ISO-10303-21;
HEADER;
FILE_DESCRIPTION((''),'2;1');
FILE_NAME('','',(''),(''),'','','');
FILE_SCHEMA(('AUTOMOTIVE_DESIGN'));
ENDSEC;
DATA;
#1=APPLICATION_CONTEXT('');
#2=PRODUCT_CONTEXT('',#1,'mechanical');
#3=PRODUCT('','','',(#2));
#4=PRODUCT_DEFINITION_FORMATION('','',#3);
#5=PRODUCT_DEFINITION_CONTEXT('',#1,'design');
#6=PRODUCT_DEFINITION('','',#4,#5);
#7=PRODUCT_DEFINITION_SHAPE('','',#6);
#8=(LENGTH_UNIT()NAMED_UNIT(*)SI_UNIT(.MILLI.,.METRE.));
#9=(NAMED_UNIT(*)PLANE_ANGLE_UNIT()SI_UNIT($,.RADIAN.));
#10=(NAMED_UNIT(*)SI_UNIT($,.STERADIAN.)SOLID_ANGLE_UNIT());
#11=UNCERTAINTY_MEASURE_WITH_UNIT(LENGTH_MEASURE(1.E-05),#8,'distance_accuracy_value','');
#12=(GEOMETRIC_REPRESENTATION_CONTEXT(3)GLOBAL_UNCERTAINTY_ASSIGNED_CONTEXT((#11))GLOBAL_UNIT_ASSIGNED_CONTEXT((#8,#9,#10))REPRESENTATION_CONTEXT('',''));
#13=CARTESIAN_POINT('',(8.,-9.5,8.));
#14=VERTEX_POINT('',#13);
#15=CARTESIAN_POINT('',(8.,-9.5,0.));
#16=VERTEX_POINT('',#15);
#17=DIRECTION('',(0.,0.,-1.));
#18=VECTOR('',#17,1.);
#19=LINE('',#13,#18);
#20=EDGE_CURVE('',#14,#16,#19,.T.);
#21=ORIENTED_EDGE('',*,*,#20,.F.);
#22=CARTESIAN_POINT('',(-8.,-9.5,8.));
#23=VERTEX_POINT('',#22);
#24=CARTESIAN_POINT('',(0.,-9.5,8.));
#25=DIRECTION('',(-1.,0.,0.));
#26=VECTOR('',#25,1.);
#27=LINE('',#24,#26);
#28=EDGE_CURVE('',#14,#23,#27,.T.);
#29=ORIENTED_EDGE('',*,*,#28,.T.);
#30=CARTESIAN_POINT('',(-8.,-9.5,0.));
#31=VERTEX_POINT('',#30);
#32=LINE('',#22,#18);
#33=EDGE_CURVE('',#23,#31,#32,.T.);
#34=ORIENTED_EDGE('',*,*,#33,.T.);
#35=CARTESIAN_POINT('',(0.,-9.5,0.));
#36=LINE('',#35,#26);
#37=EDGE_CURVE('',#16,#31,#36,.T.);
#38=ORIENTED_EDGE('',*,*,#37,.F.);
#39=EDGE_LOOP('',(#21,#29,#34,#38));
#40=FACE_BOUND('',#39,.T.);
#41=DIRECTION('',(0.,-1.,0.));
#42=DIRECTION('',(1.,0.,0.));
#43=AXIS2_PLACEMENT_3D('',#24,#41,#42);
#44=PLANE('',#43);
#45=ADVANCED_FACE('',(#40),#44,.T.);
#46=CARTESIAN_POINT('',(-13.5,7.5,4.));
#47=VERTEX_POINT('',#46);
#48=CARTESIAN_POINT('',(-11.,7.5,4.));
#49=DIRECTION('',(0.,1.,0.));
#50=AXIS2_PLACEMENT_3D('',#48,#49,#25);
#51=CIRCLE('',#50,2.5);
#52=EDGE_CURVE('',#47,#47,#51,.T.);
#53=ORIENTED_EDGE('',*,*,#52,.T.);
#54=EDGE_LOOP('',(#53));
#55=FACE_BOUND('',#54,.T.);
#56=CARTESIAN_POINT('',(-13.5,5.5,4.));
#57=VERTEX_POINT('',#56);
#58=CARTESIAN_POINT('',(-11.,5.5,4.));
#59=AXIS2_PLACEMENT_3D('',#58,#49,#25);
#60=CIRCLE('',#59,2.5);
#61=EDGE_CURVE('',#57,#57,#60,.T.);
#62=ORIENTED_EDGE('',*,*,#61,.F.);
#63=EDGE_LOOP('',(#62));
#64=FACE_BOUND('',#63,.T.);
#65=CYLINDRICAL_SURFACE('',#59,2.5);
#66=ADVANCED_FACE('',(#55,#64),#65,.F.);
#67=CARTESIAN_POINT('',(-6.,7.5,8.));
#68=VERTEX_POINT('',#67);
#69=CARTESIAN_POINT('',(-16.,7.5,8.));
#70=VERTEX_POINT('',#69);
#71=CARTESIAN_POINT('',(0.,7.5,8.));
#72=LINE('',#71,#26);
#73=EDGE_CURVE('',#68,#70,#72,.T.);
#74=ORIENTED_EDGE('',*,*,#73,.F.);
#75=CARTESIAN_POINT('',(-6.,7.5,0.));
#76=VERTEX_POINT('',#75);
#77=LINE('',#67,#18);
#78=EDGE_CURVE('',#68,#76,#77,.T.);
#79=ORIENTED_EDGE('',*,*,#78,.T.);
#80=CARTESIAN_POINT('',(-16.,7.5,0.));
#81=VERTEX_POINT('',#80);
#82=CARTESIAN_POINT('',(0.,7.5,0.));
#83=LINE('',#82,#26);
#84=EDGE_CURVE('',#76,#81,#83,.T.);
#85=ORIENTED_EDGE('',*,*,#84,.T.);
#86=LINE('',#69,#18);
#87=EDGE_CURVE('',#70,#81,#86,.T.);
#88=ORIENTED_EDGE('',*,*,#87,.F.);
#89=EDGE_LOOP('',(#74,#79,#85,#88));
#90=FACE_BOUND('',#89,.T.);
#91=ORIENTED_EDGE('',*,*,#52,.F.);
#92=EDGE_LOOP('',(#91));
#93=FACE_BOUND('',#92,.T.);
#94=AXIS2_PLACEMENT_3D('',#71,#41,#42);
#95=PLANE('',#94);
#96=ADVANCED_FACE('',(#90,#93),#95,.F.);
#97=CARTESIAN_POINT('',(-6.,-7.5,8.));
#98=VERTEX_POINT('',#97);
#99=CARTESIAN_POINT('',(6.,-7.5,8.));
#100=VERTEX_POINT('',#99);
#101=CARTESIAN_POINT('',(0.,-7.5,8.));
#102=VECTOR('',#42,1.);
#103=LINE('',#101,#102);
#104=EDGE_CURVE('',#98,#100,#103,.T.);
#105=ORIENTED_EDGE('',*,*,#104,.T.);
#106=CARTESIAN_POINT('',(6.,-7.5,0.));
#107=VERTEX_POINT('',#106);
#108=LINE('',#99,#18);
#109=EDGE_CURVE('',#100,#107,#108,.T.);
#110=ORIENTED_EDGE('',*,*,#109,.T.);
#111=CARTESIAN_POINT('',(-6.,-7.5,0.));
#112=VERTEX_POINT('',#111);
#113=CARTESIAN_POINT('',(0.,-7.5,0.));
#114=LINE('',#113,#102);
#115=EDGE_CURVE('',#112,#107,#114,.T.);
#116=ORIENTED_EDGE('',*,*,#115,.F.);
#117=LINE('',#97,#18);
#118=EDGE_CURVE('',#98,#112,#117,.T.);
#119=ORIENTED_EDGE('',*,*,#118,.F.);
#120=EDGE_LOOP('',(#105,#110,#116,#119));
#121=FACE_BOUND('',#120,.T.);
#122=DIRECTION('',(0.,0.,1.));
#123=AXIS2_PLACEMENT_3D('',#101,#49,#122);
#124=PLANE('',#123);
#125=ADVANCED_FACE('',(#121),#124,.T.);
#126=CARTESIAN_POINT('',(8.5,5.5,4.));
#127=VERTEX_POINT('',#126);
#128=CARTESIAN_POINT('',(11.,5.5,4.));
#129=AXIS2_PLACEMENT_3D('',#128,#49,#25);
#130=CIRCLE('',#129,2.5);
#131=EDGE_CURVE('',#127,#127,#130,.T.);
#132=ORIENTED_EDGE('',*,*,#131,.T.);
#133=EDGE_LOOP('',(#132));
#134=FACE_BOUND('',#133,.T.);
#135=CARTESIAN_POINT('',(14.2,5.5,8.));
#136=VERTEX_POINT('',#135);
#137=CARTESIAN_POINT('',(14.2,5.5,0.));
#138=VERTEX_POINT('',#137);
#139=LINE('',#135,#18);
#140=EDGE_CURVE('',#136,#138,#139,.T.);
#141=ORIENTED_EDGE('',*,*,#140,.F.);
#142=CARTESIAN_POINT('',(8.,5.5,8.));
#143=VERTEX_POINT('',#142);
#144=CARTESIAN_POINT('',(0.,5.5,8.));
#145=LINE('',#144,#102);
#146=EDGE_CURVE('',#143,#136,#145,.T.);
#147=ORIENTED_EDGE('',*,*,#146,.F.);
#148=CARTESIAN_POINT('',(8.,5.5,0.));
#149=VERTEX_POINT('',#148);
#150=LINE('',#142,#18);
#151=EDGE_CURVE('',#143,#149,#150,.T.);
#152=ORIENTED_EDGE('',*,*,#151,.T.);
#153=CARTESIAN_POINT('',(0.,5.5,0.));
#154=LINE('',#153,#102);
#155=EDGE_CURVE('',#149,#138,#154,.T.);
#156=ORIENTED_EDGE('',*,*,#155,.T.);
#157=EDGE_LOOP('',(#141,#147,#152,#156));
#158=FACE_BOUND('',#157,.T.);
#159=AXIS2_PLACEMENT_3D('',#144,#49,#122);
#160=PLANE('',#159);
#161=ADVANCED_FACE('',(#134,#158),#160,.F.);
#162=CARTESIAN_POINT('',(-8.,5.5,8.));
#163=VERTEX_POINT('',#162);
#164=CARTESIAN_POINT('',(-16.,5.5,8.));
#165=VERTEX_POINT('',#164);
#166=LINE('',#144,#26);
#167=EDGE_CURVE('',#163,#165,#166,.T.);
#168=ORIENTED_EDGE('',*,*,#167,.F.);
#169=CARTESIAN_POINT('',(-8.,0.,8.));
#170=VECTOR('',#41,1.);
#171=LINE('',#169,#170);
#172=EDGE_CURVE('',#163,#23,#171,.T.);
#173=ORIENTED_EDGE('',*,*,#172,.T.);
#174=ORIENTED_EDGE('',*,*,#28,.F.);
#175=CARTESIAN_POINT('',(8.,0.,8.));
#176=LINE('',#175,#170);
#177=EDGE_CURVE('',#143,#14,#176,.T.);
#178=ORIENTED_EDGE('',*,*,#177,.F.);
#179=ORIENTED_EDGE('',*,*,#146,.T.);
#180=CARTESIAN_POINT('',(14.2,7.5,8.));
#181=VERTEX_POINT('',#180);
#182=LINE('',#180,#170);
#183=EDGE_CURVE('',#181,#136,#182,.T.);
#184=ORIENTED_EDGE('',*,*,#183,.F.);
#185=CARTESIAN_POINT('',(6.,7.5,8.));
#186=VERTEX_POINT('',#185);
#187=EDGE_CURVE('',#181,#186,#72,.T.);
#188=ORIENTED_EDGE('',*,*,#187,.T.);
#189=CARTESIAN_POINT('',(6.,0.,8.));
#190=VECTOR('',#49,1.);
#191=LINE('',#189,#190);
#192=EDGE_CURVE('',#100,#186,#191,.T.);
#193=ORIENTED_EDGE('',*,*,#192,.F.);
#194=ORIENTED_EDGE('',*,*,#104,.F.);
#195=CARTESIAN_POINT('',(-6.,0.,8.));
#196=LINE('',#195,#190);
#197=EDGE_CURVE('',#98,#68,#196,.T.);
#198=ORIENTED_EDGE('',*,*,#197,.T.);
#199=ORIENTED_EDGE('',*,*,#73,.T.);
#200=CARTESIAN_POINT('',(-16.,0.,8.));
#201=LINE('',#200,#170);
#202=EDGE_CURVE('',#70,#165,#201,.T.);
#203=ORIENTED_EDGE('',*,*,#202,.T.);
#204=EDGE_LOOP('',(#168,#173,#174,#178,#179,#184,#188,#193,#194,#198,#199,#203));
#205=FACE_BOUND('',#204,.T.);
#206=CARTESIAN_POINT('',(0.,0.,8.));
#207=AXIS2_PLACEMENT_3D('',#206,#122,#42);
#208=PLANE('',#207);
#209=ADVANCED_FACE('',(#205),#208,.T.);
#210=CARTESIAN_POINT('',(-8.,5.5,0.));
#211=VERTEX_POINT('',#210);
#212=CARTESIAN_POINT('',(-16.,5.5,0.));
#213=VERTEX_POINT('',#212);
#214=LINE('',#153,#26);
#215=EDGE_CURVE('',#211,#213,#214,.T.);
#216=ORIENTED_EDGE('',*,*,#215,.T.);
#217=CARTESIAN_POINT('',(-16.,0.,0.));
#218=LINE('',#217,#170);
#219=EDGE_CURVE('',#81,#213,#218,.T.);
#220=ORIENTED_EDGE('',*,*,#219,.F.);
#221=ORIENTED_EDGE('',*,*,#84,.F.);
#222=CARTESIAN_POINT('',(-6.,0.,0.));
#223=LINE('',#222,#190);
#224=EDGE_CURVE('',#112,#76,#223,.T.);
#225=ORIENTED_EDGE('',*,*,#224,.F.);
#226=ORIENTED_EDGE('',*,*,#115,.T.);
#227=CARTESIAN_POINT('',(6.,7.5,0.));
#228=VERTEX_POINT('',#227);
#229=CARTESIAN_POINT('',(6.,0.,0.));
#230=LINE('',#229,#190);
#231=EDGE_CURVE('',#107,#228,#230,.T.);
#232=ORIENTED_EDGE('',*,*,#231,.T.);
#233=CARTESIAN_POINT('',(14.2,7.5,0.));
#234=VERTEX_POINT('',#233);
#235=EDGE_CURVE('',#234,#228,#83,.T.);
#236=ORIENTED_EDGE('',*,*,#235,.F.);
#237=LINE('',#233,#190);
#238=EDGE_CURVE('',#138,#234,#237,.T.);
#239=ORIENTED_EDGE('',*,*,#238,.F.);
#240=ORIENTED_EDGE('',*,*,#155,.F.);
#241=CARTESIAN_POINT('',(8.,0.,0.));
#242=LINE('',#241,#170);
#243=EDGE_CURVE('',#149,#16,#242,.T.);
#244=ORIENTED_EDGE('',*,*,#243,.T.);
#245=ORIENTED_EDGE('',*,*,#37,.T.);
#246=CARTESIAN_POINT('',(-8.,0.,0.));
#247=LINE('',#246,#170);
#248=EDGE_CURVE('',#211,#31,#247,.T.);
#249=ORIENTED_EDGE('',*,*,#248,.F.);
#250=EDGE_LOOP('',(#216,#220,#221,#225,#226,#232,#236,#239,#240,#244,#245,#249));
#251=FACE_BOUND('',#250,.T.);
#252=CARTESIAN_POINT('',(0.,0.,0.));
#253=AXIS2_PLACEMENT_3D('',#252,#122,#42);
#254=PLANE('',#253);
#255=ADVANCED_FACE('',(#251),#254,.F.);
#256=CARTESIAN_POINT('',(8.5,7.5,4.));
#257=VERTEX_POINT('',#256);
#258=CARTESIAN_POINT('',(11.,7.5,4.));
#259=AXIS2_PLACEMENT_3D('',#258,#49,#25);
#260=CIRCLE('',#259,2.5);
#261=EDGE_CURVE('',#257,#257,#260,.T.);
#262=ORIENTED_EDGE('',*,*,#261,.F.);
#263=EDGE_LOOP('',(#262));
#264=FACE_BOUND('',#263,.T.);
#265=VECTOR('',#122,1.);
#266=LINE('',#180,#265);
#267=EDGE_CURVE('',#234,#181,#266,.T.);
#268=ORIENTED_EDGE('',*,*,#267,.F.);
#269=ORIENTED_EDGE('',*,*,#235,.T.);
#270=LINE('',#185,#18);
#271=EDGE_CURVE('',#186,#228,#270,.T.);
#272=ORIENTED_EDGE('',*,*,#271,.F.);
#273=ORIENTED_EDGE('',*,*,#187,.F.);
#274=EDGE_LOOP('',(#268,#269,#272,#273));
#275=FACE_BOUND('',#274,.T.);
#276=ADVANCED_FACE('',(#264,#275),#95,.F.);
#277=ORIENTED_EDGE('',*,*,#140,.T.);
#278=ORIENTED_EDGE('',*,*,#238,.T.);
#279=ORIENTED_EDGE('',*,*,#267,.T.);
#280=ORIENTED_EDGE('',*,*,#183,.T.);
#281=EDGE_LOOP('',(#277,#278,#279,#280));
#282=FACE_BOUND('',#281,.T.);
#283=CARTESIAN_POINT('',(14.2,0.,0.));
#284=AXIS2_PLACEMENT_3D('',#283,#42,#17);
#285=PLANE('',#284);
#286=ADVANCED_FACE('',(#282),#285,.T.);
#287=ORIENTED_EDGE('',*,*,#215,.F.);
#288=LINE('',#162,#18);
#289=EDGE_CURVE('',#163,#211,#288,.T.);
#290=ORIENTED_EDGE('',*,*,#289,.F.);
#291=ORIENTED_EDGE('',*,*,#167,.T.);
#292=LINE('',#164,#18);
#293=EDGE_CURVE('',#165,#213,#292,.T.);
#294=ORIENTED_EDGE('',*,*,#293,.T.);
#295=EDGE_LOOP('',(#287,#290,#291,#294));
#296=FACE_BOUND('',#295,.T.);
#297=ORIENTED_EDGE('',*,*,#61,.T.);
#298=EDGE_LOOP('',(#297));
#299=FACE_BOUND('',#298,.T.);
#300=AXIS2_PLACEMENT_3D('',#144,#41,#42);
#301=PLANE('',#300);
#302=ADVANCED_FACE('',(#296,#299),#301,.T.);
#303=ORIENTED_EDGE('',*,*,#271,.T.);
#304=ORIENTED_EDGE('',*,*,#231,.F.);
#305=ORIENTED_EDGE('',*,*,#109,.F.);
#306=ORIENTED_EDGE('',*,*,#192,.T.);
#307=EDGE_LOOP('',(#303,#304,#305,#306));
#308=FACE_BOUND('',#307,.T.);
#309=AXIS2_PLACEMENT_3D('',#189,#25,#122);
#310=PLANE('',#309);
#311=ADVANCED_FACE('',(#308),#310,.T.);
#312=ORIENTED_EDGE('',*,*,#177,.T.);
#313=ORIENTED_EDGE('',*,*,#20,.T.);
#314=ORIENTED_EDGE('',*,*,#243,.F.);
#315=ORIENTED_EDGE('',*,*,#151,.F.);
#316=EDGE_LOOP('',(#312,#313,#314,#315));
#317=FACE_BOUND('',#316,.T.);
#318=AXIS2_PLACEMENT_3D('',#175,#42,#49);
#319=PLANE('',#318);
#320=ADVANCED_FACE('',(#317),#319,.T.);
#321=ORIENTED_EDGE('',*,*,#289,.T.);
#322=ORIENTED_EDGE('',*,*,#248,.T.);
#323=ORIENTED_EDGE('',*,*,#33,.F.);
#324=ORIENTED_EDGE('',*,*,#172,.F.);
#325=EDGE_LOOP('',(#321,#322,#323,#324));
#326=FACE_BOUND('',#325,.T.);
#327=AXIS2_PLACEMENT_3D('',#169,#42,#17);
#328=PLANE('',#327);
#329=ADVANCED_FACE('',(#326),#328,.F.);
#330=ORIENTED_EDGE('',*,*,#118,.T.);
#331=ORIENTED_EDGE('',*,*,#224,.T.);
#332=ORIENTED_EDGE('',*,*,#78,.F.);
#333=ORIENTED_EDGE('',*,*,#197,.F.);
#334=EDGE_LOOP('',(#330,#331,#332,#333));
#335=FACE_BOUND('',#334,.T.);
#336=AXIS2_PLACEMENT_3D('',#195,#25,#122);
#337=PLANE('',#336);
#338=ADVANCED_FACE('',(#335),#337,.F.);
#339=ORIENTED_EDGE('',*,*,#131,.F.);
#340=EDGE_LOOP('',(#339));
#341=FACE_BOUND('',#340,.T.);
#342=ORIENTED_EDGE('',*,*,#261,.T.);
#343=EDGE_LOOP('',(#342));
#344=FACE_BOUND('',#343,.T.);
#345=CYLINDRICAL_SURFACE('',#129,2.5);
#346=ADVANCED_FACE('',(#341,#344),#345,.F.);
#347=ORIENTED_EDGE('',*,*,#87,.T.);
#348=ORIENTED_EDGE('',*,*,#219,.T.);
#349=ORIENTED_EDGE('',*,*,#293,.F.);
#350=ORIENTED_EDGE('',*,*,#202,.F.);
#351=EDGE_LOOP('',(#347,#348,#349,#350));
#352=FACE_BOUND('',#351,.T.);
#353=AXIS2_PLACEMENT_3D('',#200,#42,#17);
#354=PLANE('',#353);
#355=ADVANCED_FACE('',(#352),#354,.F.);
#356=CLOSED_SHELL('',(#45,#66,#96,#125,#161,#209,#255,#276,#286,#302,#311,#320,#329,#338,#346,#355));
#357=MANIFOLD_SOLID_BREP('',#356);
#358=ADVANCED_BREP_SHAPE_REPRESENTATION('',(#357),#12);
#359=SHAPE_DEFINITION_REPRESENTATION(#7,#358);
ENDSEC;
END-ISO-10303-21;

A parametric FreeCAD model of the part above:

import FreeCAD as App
import Part
import Sketcher
Q = App.Units.Quantity

doc = App.newDocument("Part")
params = doc.addObject("Spreadsheet::Sheet", "Params")
for row, (alias, value) in enumerate([
    ("sketch1_width", "8 mm"),
    ("sketch1_width2", "16 mm"),
    ("sketch1_width3", "10 mm"),
    ("sketch1_height", "2 mm"),
    ("sketch1_height2", "15 mm"),
    ("pad1_length", "8 mm"),
    ("sketch2_diameter", "5 mm"),
    ("pocket1_length", "2 mm"),
    ("sketch3_width", "2 mm"),
    ("sketch3_height", "8 mm"),
    ("pocket2_length", "1.8 mm"),
], start=1):
    params.set(f"A{row}", alias)
    params.set(f"B{row}", "=" + value)
    params.setAlias(f"B{row}", alias)

body = doc.addObject("PartDesign::Body", "Body")

sketch1 = doc.addObject("Sketcher::SketchObject", "Sketch")
body.addObject(sketch1)
sketch1.AttachmentSupport = (doc.XY_Plane, [""])
sketch1.MapMode = "FlatFace"
sketch1.addGeometry(Part.LineSegment(App.Vector(-16, 7.5, 0), App.Vector(-16, 5.5, 0)), False)
sketch1.addGeometry(Part.LineSegment(App.Vector(-16, 5.5, 0), App.Vector(-8, 5.5, 0)), False)
sketch1.addGeometry(Part.LineSegment(App.Vector(-8, 5.5, 0), App.Vector(-8, -9.5, 0)), False)
sketch1.addGeometry(Part.LineSegment(App.Vector(-8, -9.5, 0), App.Vector(8, -9.5, 0)), False)
sketch1.addGeometry(Part.LineSegment(App.Vector(8, -9.5, 0), App.Vector(8, 5.5, 0)), False)
sketch1.addGeometry(Part.LineSegment(App.Vector(8, 5.5, 0), App.Vector(16, 5.5, 0)), False)
sketch1.addGeometry(Part.LineSegment(App.Vector(16, 5.5, 0), App.Vector(16, 7.5, 0)), False)
sketch1.addGeometry(Part.LineSegment(App.Vector(16, 7.5, 0), App.Vector(6, 7.5, 0)), False)
sketch1.addGeometry(Part.LineSegment(App.Vector(6, 7.5, 0), App.Vector(6, -7.5, 0)), False)
sketch1.addGeometry(Part.LineSegment(App.Vector(6, -7.5, 0), App.Vector(-6, -7.5, 0)), False)
sketch1.addGeometry(Part.LineSegment(App.Vector(-6, -7.5, 0), App.Vector(-6, 7.5, 0)), False)
sketch1.addGeometry(Part.LineSegment(App.Vector(-6, 7.5, 0), App.Vector(-16, 7.5, 0)), False)
sketch1.addConstraint(Sketcher.Constraint("Coincident", 0, 2, 1, 1))
sketch1.addConstraint(Sketcher.Constraint("Coincident", 1, 2, 2, 1))
sketch1.addConstraint(Sketcher.Constraint("Coincident", 2, 2, 3, 1))
sketch1.addConstraint(Sketcher.Constraint("Coincident", 3, 2, 4, 1))
sketch1.addConstraint(Sketcher.Constraint("Coincident", 4, 2, 5, 1))
sketch1.addConstraint(Sketcher.Constraint("Coincident", 5, 2, 6, 1))
sketch1.addConstraint(Sketcher.Constraint("Coincident", 6, 2, 7, 1))
sketch1.addConstraint(Sketcher.Constraint("Coincident", 7, 2, 8, 1))
sketch1.addConstraint(Sketcher.Constraint("Coincident", 8, 2, 9, 1))
sketch1.addConstraint(Sketcher.Constraint("Coincident", 9, 2, 10, 1))
sketch1.addConstraint(Sketcher.Constraint("Coincident", 10, 2, 11, 1))
sketch1.addConstraint(Sketcher.Constraint("Coincident", 11, 2, 0, 1))
sketch1.addConstraint(Sketcher.Constraint("Vertical", 0))
sketch1.addConstraint(Sketcher.Constraint("Horizontal", 1))
sketch1.addConstraint(Sketcher.Constraint("Vertical", 2))
sketch1.addConstraint(Sketcher.Constraint("Horizontal", 3))
sketch1.addConstraint(Sketcher.Constraint("Vertical", 4))
sketch1.addConstraint(Sketcher.Constraint("Horizontal", 5))
sketch1.addConstraint(Sketcher.Constraint("Vertical", 6))
sketch1.addConstraint(Sketcher.Constraint("Horizontal", 7))
sketch1.addConstraint(Sketcher.Constraint("Vertical", 8))
sketch1.addConstraint(Sketcher.Constraint("Horizontal", 9))
sketch1.addConstraint(Sketcher.Constraint("Vertical", 10))
sketch1.addConstraint(Sketcher.Constraint("Horizontal", 11))
sketch1.addConstraint(Sketcher.Constraint("Symmetric", 7, 2, 9, 2, -1, 1))
sketch1.addConstraint(Sketcher.Constraint("Symmetric", 1, 2, 4, 2, -2))
sketch1.addConstraint(Sketcher.Constraint("Symmetric", 6, 2, 11, 2, -2))
sketch1.addConstraint(Sketcher.Constraint("Equal", 4, 8))
sketch1.addConstraint(Sketcher.Constraint("DistanceX", 1, 1, 1, 2, Q("8 mm")))
sketch1.addConstraint(Sketcher.Constraint("DistanceX", 3, 1, 3, 2, Q("16 mm")))
sketch1.addConstraint(Sketcher.Constraint("DistanceX", 7, 2, 7, 1, Q("10 mm")))
sketch1.addConstraint(Sketcher.Constraint("DistanceY", 0, 2, 0, 1, Q("2 mm")))
sketch1.addConstraint(Sketcher.Constraint("DistanceY", 2, 2, 2, 1, Q("15 mm")))
sketch1.setExpression("Constraints[28]", "Params.sketch1_width")
sketch1.setExpression("Constraints[29]", "Params.sketch1_width2")
sketch1.setExpression("Constraints[30]", "Params.sketch1_width3")
sketch1.setExpression("Constraints[31]", "Params.sketch1_height")
sketch1.setExpression("Constraints[32]", "Params.sketch1_height2")
pad1 = doc.addObject("PartDesign::Pad", "Pad")
body.addObject(pad1)
pad1.Profile = sketch1
pad1.setExpression("Length", "Params.pad1_length")

sketch2 = doc.addObject("Sketcher::SketchObject", "Sketch001")
body.addObject(sketch2)
sketch2.AttachmentSupport = (doc.XZ_Plane, [""])
sketch2.MapMode = "FlatFace"
sketch2.AttachmentOffset = App.Placement(App.Vector(0, 0, -7.5), App.Rotation())
sketch2.addGeometry(Part.Circle(App.Vector(-11, 4, 0), App.Vector(0, 0, 1), 2.5), False)
sketch2.addGeometry(Part.Circle(App.Vector(11, 4, 0), App.Vector(0, 0, 1), 2.5), False)
sketch2.addConstraint(Sketcher.Constraint("Equal", 0, 1))
sketch2.addConstraint(Sketcher.Constraint("Symmetric", 0, 3, 1, 3, -2))
sketch2.addConstraint(Sketcher.Constraint("Diameter", 0, Q("5 mm")))
sketch2.addConstraint(Sketcher.Constraint("DistanceX", 0, 3, -1, 1, Q("11 mm")))
sketch2.addConstraint(Sketcher.Constraint("DistanceY", -1, 1, 0, 3, Q("4 mm")))
sketch2.setExpression("Constraints[2]", "Params.sketch2_diameter")
pocket1 = doc.addObject("PartDesign::Pocket", "Pocket")
body.addObject(pocket1)
pocket1.Profile = sketch2
pocket1.setExpression("Length", "Params.pocket1_length")
pocket1.Reversed = True

sketch3 = doc.addObject("Sketcher::SketchObject", "Sketch002")
body.addObject(sketch3)
sketch3.AttachmentSupport = (doc.YZ_Plane, [""])
sketch3.MapMode = "FlatFace"
sketch3.AttachmentOffset = App.Placement(App.Vector(0, 0, 16), App.Rotation())
sketch3.addGeometry(Part.LineSegment(App.Vector(7.5, 8, 0), App.Vector(5.5, 8, 0)), False)
sketch3.addGeometry(Part.LineSegment(App.Vector(5.5, 8, 0), App.Vector(5.5, 0, 0)), False)
sketch3.addGeometry(Part.LineSegment(App.Vector(5.5, 0, 0), App.Vector(7.5, 0, 0)), False)
sketch3.addGeometry(Part.LineSegment(App.Vector(7.5, 0, 0), App.Vector(7.5, 8, 0)), False)
sketch3.addConstraint(Sketcher.Constraint("Coincident", 0, 2, 1, 1))
sketch3.addConstraint(Sketcher.Constraint("Coincident", 1, 2, 2, 1))
sketch3.addConstraint(Sketcher.Constraint("Coincident", 2, 2, 3, 1))
sketch3.addConstraint(Sketcher.Constraint("Coincident", 3, 2, 0, 1))
sketch3.addConstraint(Sketcher.Constraint("Horizontal", 0))
sketch3.addConstraint(Sketcher.Constraint("Vertical", 1))
sketch3.addConstraint(Sketcher.Constraint("Horizontal", 2))
sketch3.addConstraint(Sketcher.Constraint("Vertical", 3))
sketch3.addConstraint(Sketcher.Constraint("PointOnObject", 1, 2, -1))
sketch3.addConstraint(Sketcher.Constraint("DistanceX", 0, 2, 0, 1, Q("2 mm")))
sketch3.addConstraint(Sketcher.Constraint("DistanceY", 1, 2, 1, 1, Q("8 mm")))
sketch3.addConstraint(Sketcher.Constraint("DistanceX", -1, 1, 0, 2, Q("5.5 mm")))
sketch3.setExpression("Constraints[9]", "Params.sketch3_width")
sketch3.setExpression("Constraints[10]", "Params.sketch3_height")
pocket2 = doc.addObject("PartDesign::Pocket", "Pocket001")
body.addObject(pocket2)
pocket2.Profile = sketch3
pocket2.setExpression("Length", "Params.pocket2_length")

doc.recompute()
